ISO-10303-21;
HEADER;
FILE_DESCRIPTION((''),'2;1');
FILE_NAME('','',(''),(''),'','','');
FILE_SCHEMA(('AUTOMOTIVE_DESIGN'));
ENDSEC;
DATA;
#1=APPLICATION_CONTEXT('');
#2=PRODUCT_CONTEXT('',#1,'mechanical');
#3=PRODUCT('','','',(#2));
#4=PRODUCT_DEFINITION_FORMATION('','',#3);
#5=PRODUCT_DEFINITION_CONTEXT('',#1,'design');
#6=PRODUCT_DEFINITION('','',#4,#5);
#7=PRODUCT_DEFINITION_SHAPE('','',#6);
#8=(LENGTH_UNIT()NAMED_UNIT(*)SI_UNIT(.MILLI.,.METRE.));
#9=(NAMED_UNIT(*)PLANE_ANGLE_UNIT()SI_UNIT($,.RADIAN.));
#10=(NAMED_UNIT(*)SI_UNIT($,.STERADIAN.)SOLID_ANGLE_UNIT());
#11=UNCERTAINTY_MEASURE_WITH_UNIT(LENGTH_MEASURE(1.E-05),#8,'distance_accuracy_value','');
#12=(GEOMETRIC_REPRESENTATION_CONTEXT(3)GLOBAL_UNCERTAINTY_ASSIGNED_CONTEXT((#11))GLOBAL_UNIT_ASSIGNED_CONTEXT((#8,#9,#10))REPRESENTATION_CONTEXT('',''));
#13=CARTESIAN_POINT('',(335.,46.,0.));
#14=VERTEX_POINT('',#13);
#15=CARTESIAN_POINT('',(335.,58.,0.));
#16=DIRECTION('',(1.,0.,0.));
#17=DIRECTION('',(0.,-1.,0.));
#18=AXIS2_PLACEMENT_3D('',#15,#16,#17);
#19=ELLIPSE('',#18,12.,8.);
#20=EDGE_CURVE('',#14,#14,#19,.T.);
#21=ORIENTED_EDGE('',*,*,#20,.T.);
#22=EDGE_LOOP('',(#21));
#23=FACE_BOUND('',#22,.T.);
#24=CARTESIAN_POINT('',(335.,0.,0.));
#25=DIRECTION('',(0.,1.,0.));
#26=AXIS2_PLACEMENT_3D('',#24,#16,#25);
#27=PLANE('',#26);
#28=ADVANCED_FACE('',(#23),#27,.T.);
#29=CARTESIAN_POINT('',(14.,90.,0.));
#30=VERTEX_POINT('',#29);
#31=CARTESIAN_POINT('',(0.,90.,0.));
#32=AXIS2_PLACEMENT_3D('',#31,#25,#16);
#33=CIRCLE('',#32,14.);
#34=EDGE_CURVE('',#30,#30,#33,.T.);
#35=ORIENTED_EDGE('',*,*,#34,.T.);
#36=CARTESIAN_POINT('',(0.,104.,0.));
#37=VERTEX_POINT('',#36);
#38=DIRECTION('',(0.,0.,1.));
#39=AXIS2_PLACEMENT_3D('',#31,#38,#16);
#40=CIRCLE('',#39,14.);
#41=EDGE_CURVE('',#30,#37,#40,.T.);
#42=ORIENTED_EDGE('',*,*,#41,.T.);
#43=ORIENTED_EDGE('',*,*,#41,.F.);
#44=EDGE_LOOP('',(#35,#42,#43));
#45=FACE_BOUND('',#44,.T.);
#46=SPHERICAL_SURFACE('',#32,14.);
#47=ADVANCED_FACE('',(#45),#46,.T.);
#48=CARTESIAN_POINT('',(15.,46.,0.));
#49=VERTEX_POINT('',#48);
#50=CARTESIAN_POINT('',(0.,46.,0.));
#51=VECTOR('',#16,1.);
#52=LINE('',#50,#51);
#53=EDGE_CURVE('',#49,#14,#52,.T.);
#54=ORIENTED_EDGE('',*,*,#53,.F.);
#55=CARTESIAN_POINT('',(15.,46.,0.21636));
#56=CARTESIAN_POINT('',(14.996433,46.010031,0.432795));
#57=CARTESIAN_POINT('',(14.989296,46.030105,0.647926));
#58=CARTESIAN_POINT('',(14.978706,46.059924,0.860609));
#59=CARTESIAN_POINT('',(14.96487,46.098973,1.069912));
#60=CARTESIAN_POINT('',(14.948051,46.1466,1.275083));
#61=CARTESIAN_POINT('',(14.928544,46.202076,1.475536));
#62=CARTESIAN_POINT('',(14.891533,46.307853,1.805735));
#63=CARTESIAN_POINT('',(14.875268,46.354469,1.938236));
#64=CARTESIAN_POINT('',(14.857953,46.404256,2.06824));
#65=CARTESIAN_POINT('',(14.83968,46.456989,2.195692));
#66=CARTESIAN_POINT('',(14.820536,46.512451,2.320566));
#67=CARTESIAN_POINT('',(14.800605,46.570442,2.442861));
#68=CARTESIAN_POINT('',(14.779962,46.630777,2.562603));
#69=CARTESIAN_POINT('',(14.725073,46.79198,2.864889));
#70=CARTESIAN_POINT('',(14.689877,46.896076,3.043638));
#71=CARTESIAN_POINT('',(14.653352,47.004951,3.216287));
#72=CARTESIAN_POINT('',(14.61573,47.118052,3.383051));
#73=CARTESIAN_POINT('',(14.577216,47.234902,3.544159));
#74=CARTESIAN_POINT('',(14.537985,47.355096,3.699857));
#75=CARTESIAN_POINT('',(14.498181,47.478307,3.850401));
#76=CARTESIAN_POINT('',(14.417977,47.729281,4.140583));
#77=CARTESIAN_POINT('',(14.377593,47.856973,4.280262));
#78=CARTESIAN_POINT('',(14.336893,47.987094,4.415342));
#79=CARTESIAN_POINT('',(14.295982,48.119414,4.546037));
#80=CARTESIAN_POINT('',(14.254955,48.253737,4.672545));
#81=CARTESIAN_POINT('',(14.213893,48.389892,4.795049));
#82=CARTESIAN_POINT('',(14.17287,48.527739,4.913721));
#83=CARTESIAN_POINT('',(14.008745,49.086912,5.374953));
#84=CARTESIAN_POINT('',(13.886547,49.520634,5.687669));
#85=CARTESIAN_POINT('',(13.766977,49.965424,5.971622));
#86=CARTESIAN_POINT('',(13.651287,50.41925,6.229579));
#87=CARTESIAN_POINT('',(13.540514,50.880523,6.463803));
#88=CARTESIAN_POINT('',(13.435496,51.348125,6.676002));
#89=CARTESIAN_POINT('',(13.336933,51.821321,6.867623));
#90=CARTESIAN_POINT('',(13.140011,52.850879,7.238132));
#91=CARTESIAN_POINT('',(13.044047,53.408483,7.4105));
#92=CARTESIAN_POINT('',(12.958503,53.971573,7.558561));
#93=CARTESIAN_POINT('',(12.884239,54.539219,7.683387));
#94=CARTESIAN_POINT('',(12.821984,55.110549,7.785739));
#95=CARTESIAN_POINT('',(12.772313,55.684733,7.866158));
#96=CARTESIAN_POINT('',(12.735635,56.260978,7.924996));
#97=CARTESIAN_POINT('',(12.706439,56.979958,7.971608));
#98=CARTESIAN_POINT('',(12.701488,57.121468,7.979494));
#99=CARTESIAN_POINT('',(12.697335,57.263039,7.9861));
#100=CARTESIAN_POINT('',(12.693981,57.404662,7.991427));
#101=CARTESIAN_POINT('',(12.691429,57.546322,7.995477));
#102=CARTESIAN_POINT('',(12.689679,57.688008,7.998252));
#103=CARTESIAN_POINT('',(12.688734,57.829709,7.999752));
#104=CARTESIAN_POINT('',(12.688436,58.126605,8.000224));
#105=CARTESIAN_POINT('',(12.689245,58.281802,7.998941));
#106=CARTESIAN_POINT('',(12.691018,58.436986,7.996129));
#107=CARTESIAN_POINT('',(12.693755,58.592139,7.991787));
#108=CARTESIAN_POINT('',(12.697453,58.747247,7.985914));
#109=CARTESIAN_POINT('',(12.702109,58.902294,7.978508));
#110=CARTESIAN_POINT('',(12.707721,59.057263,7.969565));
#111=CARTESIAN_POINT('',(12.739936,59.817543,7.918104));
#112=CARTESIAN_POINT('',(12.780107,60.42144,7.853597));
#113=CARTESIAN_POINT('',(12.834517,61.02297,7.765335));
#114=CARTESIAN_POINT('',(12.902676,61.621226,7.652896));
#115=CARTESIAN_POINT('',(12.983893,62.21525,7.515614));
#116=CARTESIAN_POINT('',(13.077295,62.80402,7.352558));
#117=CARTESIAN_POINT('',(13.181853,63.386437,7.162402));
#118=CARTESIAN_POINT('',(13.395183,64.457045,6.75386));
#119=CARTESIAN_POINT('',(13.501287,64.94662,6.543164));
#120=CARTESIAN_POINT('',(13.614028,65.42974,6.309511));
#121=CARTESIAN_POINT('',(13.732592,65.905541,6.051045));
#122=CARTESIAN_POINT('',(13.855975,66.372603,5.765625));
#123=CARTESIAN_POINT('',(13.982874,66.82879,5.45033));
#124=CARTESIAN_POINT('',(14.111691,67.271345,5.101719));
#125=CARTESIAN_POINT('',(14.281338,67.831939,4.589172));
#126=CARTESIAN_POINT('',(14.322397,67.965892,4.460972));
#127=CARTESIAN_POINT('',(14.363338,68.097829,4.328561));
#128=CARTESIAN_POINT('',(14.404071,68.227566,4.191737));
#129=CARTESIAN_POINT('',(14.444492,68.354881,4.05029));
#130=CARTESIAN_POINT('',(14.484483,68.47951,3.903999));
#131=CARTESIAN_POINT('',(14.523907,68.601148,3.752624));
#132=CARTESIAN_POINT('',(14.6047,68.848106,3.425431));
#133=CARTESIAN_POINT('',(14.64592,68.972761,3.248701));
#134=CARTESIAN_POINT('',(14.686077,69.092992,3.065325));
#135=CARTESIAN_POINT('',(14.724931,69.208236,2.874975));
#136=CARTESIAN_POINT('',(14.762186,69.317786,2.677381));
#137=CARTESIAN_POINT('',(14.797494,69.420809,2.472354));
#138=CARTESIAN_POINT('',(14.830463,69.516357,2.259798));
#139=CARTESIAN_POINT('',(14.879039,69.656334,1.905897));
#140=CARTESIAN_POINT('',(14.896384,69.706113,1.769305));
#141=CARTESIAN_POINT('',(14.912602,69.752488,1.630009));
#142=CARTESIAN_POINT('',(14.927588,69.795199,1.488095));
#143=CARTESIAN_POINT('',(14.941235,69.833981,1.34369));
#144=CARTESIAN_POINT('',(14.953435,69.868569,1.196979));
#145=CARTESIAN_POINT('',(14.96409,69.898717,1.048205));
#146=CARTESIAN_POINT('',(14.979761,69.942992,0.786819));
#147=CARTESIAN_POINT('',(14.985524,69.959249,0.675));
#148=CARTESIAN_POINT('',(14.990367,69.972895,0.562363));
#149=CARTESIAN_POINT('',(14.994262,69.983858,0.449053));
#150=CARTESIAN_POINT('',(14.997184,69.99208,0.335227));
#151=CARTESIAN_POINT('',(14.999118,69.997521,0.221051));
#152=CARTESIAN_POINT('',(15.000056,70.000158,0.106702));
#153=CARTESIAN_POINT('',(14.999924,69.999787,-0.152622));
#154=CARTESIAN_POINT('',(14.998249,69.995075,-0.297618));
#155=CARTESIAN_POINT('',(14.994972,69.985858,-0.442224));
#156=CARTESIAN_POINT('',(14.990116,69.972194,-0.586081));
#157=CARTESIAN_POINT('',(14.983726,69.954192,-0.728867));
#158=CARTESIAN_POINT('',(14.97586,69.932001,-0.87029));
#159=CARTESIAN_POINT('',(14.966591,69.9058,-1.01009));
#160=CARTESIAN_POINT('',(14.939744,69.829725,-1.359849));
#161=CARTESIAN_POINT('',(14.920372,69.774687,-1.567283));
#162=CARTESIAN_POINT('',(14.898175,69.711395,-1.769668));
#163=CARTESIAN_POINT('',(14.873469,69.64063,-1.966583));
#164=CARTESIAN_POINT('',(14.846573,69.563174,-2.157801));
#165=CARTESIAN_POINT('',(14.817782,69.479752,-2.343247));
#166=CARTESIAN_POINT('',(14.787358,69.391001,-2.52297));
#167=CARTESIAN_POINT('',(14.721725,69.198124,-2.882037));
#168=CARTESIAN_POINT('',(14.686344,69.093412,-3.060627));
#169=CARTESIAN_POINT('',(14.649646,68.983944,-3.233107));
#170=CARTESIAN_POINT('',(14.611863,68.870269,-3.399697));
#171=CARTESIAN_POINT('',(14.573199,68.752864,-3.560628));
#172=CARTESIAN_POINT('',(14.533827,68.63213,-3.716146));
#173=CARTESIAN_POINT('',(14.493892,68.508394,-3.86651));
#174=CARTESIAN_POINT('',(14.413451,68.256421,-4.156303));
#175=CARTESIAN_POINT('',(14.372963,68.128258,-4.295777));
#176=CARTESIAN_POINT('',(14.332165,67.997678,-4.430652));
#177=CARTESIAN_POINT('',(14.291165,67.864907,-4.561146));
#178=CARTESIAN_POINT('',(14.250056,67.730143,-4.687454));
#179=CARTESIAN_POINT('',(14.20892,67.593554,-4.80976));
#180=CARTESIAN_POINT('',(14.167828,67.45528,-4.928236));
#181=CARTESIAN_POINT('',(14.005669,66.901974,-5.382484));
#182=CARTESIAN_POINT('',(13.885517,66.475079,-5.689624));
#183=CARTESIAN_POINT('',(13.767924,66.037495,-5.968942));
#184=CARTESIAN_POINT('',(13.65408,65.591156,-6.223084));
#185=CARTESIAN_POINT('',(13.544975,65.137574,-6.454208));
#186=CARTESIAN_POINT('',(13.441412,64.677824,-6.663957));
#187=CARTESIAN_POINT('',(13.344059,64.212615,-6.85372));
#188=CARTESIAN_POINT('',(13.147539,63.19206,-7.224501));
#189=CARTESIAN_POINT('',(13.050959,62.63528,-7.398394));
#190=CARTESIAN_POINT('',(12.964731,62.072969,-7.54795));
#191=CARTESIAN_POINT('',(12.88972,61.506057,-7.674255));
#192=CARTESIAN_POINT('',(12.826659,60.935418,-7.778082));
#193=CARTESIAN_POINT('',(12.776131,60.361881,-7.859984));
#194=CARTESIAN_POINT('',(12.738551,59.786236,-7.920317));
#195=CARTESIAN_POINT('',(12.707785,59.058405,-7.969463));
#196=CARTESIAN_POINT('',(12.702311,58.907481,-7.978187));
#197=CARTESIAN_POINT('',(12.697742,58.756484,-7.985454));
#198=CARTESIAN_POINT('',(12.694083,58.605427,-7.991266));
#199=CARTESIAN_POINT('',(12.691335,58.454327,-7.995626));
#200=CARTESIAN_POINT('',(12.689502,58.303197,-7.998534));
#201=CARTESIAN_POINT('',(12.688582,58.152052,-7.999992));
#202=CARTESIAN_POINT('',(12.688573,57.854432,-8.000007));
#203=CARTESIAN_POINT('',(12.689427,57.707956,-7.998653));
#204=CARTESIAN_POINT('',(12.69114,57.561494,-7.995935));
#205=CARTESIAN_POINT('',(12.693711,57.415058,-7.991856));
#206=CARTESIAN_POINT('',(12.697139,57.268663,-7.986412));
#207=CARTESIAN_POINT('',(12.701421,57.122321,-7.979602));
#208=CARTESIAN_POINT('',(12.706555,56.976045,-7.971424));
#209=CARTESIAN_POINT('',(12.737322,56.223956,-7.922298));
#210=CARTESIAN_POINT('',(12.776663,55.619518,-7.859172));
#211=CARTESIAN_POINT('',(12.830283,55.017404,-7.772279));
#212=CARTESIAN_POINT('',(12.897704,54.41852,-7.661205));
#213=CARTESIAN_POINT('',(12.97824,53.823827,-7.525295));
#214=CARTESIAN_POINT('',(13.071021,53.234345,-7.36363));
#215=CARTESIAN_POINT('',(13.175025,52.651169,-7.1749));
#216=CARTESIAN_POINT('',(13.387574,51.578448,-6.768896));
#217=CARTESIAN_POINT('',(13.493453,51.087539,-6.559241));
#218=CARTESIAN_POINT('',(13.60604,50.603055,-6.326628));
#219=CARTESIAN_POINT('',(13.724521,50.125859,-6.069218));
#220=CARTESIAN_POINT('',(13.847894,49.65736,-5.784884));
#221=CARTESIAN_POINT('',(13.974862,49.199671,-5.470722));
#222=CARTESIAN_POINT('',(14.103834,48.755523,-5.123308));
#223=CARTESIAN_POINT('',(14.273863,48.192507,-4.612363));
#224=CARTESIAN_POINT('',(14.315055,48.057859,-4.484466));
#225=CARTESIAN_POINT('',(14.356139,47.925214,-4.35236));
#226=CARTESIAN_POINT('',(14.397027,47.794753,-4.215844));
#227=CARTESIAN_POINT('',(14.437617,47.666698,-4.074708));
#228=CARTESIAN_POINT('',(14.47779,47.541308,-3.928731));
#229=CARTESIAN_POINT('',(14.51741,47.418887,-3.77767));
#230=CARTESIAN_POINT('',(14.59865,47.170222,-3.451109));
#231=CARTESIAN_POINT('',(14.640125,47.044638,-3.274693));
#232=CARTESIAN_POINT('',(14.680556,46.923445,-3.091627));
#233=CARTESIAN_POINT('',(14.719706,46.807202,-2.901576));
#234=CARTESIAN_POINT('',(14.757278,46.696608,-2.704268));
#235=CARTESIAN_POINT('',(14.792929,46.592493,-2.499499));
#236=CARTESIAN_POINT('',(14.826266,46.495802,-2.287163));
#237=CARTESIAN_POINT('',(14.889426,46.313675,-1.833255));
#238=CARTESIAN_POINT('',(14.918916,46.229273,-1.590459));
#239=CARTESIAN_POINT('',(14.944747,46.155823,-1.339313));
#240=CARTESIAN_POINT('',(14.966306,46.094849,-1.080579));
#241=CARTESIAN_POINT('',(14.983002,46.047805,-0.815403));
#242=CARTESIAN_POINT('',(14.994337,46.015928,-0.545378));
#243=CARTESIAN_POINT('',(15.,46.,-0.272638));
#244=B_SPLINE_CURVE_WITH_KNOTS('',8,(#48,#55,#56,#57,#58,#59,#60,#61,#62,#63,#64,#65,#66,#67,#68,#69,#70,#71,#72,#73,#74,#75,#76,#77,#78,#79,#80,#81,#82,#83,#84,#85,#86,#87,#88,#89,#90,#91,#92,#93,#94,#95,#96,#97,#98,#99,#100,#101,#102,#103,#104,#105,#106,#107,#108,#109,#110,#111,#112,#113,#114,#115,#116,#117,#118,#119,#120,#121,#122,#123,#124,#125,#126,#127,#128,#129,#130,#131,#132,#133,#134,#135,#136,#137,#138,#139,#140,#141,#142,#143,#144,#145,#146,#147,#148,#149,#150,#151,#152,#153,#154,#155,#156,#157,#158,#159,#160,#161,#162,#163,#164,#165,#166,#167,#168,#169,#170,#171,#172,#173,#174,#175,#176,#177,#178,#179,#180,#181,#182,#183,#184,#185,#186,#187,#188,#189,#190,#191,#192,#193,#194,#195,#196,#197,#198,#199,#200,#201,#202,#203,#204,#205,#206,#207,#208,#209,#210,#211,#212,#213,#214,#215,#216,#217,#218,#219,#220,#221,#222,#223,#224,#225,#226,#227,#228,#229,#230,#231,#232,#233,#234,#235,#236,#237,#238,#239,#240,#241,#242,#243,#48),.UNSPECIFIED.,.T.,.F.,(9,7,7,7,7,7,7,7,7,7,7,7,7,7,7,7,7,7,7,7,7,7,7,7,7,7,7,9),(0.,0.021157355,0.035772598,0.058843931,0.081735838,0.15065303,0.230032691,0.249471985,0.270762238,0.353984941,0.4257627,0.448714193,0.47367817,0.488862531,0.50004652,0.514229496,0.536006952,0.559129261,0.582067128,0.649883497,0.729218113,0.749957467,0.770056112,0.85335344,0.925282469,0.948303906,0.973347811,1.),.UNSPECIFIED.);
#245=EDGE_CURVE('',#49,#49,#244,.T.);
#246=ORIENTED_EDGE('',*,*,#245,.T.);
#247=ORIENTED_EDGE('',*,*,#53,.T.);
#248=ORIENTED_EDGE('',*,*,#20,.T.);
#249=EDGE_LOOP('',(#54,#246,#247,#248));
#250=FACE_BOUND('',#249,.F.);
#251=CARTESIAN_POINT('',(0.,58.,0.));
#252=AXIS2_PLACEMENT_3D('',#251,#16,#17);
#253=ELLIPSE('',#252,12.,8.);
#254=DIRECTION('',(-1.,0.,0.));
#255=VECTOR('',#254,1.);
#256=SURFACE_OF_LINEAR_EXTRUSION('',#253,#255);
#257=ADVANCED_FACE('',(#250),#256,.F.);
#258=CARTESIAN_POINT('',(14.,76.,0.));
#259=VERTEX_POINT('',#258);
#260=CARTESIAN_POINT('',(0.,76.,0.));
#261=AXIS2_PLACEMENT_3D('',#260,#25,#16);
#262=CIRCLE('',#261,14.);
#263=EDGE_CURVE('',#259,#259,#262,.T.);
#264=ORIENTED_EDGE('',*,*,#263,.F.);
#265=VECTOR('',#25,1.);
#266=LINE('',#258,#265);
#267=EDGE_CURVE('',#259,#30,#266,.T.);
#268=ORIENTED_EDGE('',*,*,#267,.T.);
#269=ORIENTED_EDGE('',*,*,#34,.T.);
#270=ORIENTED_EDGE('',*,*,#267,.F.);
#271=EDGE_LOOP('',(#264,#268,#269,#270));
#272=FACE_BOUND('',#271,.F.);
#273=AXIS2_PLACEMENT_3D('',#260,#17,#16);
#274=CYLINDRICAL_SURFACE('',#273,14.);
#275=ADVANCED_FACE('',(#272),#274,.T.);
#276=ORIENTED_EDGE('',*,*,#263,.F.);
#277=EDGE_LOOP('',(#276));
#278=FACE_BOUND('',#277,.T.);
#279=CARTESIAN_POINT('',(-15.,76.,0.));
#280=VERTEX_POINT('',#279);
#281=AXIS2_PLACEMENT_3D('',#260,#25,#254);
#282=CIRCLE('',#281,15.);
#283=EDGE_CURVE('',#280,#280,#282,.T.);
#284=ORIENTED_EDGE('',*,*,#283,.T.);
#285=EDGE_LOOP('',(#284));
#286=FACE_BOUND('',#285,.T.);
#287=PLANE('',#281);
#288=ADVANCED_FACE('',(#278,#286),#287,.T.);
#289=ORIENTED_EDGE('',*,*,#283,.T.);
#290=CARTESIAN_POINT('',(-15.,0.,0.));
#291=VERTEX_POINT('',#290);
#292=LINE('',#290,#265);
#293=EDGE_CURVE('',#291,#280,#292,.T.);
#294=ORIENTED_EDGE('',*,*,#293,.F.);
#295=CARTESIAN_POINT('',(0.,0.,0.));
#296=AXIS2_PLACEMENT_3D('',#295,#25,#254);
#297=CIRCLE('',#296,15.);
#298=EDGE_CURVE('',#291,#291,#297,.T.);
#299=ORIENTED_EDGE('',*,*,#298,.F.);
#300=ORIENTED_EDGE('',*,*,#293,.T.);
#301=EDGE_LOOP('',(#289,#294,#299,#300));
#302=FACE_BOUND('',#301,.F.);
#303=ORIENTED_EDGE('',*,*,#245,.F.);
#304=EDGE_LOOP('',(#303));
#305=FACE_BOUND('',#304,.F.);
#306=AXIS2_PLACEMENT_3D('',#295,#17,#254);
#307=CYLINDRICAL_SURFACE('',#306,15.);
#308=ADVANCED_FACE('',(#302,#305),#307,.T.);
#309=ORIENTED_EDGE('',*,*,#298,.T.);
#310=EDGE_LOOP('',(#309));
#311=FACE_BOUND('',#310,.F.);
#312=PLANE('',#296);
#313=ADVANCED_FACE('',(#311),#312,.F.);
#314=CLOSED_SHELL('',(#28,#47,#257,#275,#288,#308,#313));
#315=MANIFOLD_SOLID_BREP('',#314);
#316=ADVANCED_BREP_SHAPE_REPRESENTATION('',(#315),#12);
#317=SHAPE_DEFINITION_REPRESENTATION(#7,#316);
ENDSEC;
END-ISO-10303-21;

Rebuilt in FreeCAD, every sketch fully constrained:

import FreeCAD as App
import Part
import Sketcher


def edges_at(feature, points):
    """Names of the edges that pass closest to the given points."""
    edges = feature.Shape.Edges
    near = lambda p: min(range(len(edges)), key=lambda i: edges[i].distToShape(Part.Vertex(*p))[0])
    return sorted({f"Edge{near(p) + 1}" for p in points})

doc = App.newDocument("Part")
params = doc.addObject("Spreadsheet::Sheet", "Params")
for row, (alias, value) in enumerate([
    ("sketch1_diameter", "30 mm"),
    ("pad1_length", "76 mm"),
    ("sketch2_diameter", "28 mm"),
    ("pad2_length", "28 mm"),
    ("fillet_radius", "14 mm"),
    ("pad3_length", "335 mm"),
], start=1):
    params.set(f"A{row}", alias)
    params.set(f"B{row}", "=" + value)
    params.setAlias(f"B{row}", alias)

body = doc.addObject("PartDesign::Body", "Body")

sketch1 = body.newObject("Sketcher::SketchObject", "Sketch")
sketch1.AttachmentSupport = (doc.getObject("XZ_Plane"), [""])
sketch1.MapMode = "FlatFace"
sketch1.addGeometry(Part.Circle(App.Vector(0, 0, 0), App.Vector(0, 0, 1), 15), False)
sketch1.addConstraint([
    Sketcher.Constraint("Coincident", 0, 3, -1, 1),
    Sketcher.Constraint("Diameter", 0, 30.0),
])
sketch1.setExpression("Constraints[1]", "Params.sketch1_diameter")
pad1 = body.newObject("PartDesign::Pad", "Pad")
pad1.Profile = sketch1
pad1.setExpression("Length", "Params.pad1_length")
pad1.Reversed = True

sketch2 = body.newObject("Sketcher::SketchObject", "Sketch001")
sketch2.AttachmentSupport = (doc.getObject("XZ_Plane"), [""])
sketch2.MapMode = "FlatFace"
sketch2.AttachmentOffset = App.Placement(App.Vector(0, 0, -76), App.Rotation())
sketch2.addGeometry(Part.Circle(App.Vector(0, 0, 0), App.Vector(0, 0, 1), 14), False)
sketch2.addConstraint([
    Sketcher.Constraint("Coincident", 0, 3, -1, 1),
    Sketcher.Constraint("Diameter", 0, 28.0),
])
sketch2.setExpression("Constraints[1]", "Params.sketch2_diameter")
pad2 = body.newObject("PartDesign::Pad", "Pad001")
pad2.Profile = sketch2
pad2.setExpression("Length", "Params.pad2_length")
pad2.Reversed = True
doc.recompute()

fillet = body.newObject("PartDesign::Fillet", "Fillet")
fillet.Base = (pad2, edges_at(pad2, [(-14, 104, 0)]))
fillet.setExpression("Radius", "Params.fillet_radius")

sketch3 = body.newObject("Sketcher::SketchObject", "Sketch002")
sketch3.AttachmentSupport = (doc.getObject("YZ_Plane"), [""])
sketch3.MapMode = "FlatFace"
sketch3.addGeometry(Part.Ellipse(App.Vector(46, 0, 0), App.Vector(58, -8, 0), App.Vector(58, 0, 0)), False)
sketch3.addConstraint(Sketcher.Constraint("Block", 0))
pad3 = body.newObject("PartDesign::Pad", "Pad002")
pad3.Profile = sketch3
pad3.setExpression("Length", "Params.pad3_length")

doc.recompute()
